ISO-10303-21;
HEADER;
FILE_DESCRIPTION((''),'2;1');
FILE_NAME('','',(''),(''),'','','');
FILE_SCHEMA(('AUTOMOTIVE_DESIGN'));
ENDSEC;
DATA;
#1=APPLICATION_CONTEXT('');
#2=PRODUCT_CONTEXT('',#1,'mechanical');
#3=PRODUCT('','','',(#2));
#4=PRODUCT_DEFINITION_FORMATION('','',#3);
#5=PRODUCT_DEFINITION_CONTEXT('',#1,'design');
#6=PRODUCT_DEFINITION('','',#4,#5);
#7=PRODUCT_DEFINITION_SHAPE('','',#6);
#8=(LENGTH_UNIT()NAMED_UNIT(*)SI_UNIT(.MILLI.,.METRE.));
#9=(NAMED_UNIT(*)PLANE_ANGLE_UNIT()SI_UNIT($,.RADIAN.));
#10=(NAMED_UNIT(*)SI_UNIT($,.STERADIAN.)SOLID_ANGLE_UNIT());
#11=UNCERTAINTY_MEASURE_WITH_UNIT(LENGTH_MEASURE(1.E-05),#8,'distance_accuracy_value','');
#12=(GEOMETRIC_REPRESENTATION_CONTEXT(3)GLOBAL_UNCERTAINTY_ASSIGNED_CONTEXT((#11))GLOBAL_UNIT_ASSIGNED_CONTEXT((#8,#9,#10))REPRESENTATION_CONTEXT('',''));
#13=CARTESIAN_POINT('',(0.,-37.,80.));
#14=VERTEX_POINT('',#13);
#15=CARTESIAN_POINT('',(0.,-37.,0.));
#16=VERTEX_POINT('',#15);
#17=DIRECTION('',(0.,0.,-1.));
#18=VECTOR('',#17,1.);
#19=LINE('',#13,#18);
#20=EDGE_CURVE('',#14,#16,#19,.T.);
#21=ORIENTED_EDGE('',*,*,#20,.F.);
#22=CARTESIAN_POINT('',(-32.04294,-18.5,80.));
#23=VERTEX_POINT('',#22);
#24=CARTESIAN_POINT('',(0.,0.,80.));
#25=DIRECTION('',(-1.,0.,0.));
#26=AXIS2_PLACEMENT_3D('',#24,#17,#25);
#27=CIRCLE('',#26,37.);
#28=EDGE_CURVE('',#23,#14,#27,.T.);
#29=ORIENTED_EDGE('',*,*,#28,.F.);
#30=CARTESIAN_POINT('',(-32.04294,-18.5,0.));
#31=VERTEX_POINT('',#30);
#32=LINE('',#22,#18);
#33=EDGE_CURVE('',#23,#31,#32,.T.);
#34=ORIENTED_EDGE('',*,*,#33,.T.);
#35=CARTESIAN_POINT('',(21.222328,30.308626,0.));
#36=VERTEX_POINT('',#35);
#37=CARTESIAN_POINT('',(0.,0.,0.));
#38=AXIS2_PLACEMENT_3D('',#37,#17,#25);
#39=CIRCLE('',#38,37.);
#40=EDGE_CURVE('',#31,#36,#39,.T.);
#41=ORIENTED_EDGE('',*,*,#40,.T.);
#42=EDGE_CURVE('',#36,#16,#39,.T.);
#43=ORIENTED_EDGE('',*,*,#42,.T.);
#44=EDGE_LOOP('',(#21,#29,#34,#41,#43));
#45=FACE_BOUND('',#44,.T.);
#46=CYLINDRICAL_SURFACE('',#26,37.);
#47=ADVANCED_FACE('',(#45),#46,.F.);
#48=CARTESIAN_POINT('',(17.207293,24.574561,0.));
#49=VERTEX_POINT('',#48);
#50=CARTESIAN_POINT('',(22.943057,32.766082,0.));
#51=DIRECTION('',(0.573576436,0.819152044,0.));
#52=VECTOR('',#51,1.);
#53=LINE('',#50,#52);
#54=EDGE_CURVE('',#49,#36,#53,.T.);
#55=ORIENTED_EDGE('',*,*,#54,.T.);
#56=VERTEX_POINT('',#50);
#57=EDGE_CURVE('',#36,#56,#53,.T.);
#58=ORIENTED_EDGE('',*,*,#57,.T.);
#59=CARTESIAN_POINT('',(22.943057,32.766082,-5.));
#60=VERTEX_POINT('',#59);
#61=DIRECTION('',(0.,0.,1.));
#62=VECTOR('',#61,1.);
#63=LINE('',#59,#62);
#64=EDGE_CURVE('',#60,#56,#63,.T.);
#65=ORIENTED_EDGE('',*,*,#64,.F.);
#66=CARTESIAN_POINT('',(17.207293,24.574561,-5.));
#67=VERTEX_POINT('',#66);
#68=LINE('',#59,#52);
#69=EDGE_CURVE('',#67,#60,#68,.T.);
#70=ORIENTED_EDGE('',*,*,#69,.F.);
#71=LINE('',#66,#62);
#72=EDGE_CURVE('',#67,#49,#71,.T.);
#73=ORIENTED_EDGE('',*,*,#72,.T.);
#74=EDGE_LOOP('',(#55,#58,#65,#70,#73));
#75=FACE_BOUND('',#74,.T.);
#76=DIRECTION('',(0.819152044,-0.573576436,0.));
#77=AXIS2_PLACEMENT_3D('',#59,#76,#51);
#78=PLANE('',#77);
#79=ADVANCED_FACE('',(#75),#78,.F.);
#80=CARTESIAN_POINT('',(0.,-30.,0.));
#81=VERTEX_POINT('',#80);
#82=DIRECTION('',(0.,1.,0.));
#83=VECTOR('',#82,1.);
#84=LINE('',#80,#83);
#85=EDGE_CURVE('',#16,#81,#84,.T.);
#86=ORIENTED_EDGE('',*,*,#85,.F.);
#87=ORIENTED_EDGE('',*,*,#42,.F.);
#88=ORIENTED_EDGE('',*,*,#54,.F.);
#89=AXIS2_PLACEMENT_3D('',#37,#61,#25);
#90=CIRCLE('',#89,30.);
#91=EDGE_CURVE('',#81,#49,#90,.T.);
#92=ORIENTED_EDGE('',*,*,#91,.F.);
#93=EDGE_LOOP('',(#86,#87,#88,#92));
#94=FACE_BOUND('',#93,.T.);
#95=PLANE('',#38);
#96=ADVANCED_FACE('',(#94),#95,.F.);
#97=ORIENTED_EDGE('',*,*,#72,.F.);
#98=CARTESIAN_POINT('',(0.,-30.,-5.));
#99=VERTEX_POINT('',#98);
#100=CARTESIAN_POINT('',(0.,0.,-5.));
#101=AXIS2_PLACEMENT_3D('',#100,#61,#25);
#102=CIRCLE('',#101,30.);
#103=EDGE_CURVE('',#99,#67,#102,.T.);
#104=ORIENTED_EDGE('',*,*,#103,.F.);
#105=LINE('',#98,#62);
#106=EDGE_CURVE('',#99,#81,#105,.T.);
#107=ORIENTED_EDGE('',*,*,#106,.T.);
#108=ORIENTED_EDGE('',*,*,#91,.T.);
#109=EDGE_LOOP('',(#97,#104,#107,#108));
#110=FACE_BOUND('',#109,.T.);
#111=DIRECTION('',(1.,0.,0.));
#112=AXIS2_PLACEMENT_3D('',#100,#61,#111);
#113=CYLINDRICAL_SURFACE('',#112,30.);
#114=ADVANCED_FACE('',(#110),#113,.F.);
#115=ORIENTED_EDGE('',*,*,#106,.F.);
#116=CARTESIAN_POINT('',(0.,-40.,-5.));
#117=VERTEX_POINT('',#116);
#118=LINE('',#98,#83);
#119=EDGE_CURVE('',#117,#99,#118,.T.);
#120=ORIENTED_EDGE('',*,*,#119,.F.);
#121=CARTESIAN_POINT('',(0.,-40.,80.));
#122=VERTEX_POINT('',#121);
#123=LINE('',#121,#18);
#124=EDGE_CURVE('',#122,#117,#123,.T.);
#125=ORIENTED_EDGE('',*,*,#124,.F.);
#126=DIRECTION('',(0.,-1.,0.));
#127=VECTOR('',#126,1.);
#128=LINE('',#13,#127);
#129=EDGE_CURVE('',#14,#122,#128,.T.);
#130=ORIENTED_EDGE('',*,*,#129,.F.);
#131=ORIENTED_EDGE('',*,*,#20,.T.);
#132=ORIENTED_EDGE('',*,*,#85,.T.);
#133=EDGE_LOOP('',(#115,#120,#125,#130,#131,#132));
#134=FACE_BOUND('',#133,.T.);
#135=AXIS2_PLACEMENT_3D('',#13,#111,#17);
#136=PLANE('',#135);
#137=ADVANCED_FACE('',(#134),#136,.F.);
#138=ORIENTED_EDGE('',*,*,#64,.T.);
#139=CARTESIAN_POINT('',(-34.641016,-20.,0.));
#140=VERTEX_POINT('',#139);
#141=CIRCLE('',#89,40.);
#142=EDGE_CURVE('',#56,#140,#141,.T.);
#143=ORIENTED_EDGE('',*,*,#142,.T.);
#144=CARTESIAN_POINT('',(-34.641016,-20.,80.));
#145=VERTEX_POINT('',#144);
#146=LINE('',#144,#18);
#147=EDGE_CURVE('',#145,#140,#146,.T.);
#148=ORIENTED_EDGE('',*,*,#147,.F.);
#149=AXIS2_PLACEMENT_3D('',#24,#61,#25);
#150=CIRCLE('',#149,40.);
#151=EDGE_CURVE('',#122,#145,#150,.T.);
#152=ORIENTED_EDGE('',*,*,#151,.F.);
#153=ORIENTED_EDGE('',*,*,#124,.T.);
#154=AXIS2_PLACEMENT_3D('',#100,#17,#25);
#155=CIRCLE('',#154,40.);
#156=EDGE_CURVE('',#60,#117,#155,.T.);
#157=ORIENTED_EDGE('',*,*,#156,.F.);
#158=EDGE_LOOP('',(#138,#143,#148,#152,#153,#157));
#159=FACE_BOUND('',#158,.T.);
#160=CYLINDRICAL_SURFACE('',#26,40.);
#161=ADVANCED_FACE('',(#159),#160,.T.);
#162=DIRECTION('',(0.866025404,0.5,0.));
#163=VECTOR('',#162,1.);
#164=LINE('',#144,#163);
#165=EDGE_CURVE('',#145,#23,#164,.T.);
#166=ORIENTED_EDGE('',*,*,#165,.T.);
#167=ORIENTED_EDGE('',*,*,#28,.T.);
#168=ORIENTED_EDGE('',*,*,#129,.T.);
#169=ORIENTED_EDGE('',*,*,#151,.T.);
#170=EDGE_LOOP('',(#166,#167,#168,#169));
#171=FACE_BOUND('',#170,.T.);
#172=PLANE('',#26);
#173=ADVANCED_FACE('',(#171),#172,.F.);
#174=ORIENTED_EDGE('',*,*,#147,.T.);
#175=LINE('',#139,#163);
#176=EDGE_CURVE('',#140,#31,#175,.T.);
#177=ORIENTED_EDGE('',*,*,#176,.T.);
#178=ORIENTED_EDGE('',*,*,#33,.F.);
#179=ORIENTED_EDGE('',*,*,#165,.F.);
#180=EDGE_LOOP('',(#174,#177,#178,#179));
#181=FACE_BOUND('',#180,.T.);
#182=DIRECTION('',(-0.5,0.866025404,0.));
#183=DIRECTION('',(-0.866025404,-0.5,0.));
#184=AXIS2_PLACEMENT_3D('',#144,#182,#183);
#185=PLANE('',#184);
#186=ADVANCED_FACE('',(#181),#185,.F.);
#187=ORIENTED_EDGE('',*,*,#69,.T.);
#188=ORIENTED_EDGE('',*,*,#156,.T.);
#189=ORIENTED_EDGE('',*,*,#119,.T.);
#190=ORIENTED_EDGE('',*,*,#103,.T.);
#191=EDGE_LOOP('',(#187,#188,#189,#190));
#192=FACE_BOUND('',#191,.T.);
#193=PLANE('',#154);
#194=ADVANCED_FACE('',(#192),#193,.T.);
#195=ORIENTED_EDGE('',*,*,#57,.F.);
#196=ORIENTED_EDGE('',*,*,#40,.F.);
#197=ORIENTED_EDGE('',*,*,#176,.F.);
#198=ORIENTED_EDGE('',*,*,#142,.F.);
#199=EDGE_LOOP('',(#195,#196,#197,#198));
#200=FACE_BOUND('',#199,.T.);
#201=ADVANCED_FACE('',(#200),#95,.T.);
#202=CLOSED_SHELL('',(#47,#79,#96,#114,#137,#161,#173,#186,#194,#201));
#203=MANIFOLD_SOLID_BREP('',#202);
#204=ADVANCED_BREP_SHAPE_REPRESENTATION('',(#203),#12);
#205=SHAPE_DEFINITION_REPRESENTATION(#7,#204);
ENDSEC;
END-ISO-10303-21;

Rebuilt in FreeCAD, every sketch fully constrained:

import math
import FreeCAD as App
import Part
import Sketcher
Q = App.Units.Quantity

doc = App.newDocument("Part")
body = doc.addObject("PartDesign::Body", "Body")

sketch1 = doc.addObject("Sketcher::SketchObject", "Sketch")
body.addObject(sketch1)
sketch1.AttachmentSupport = (doc.XY_Plane, [""])
sketch1.MapMode = "FlatFace"
sketch1.addGeometry(Part.LineSegment(App.Vector(0, -37, 0), App.Vector(0, -40, 0)), False)
sketch1.addGeometry(Part.ArcOfCircle(Part.Circle(App.Vector(0, 0, 0), App.Vector(0, 0, 1), 40), math.radians(-90), math.radians(210)), False)
sketch1.addGeometry(Part.LineSegment(App.Vector(-34.6, -20, 0), App.Vector(-32, -18.5, 0)), False)
sketch1.addGeometry(Part.ArcOfCircle(Part.Circle(App.Vector(0, 0, 0), App.Vector(0, 0, 1), 37), math.radians(-90), math.radians(210)), False)
sketch1.addConstraint(Sketcher.Constraint("Coincident", 0, 2, 1, 1))
sketch1.addConstraint(Sketcher.Constraint("Coincident", 1, 2, 2, 1))
sketch1.addConstraint(Sketcher.Constraint("Coincident", 2, 2, 3, 2))
sketch1.addConstraint(Sketcher.Constraint("Coincident", 3, 1, 0, 1))
sketch1.addConstraint(Sketcher.Constraint("Vertical", 0))
sketch1.addConstraint(Sketcher.Constraint("Coincident", 1, 3, -1, 1))
sketch1.addConstraint(Sketcher.Constraint("Coincident", 3, 3, -1, 1))
sketch1.addConstraint(Sketcher.Constraint("PointOnObject", 0, 2, -2))
sketch1.addConstraint(Sketcher.Constraint("Radius", 1, Q("40 mm")))
sketch1.addConstraint(Sketcher.Constraint("Radius", 3, Q("37 mm")))
sketch1.addConstraint(Sketcher.Constraint("Angle", 2, Q("30 deg")))
sketch1.addConstraint(Sketcher.Constraint("DistanceY", 1, 2, -1, 1, Q("20 mm")))
pad1 = doc.addObject("PartDesign::Pad", "Pad")
body.addObject(pad1)
pad1.Profile = sketch1
pad1.Length = 80

sketch2 = doc.addObject("Sketcher::SketchObject", "Sketch001")
body.addObject(sketch2)
sketch2.AttachmentSupport = (doc.XY_Plane, [""])
sketch2.MapMode = "FlatFace"
sketch2.AttachmentOffset = App.Placement(App.Vector(0, 0, -5), App.Rotation())
sketch2.addGeometry(Part.LineSegment(App.Vector(0, -40, 0), App.Vector(0, -30, 0)), False)
sketch2.addGeometry(Part.ArcOfCircle(Part.Circle(App.Vector(0, 0, 0), App.Vector(0, 0, 1), 30), math.radians(-90), math.radians(55)), False)
sketch2.addGeometry(Part.LineSegment(App.Vector(17, 25, 0), App.Vector(23, 33, 0)), False)
sketch2.addGeometry(Part.ArcOfCircle(Part.Circle(App.Vector(0, 0, 0), App.Vector(0, 0, 1), 40), math.radians(-90), math.radians(55)), False)
sketch2.addConstraint(Sketcher.Constraint("Coincident", 0, 2, 1, 1))
sketch2.addConstraint(Sketcher.Constraint("Coincident", 1, 2, 2, 1))
sketch2.addConstraint(Sketcher.Constraint("Coincident", 2, 2, 3, 2))
sketch2.addConstraint(Sketcher.Constraint("Coincident", 3, 1, 0, 1))
sketch2.addConstraint(Sketcher.Constraint("Vertical", 0))
sketch2.addConstraint(Sketcher.Constraint("Coincident", 1, 3, -1, 1))
sketch2.addConstraint(Sketcher.Constraint("Coincident", 3, 3, -1, 1))
sketch2.addConstraint(Sketcher.Constraint("PointOnObject", 0, 2, -2))
sketch2.addConstraint(Sketcher.Constraint("Radius", 1, Q("30 mm")))
sketch2.addConstraint(Sketcher.Constraint("Radius", 3, Q("40 mm")))
sketch2.addConstraint(Sketcher.Constraint("Angle", 2, Q("55 deg")))
sketch2.addConstraint(Sketcher.Constraint("DistanceY", -1, 1, 1, 2, Q("24.574561 mm")))
pad2 = doc.addObject("PartDesign::Pad", "Pad001")
body.addObject(pad2)
pad2.Profile = sketch2
pad2.Length = 5

doc.recompute()
